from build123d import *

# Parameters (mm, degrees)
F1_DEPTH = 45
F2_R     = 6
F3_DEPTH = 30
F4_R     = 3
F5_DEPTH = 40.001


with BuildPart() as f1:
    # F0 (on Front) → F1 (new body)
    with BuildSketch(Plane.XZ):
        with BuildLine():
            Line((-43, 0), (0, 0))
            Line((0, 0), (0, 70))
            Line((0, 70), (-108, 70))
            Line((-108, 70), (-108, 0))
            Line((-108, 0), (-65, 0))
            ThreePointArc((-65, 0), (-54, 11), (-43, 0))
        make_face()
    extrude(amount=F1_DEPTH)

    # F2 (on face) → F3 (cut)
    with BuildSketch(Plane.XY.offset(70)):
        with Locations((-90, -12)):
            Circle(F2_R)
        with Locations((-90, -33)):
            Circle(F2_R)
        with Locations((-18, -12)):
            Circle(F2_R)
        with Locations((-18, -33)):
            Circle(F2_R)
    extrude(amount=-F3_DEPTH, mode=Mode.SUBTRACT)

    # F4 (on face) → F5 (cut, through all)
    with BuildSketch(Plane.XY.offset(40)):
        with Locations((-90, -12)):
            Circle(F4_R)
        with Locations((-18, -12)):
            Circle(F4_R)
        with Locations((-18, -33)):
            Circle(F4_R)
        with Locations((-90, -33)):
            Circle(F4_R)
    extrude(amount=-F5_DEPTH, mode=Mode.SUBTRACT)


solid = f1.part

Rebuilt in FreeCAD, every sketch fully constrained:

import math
import FreeCAD as App
import Part
import Sketcher
from FreeCAD import Vector
Q = App.Units.Quantity

doc = App.newDocument("Part")
body = doc.addObject("PartDesign::Body", "Body")

sketch1 = body.newObject("Sketcher::SketchObject", "Sketch")
sketch1.AttachmentSupport = (doc.getObject("XZ_Plane"), [""])
sketch1.MapMode = "FlatFace"
sketch1.addGeometry(Part.LineSegment(Vector(-43, 0, 0), Vector(0, 0, 0)), False)
sketch1.addGeometry(Part.LineSegment(Vector(0, 0, 0), Vector(0, 70, 0)), False)
sketch1.addGeometry(Part.LineSegment(Vector(0, 70, 0), Vector(-108, 70, 0)), False)
sketch1.addGeometry(Part.LineSegment(Vector(-108, 70, 0), Vector(-108, 0, 0)), False)
sketch1.addGeometry(Part.LineSegment(Vector(-108, 0, 0), Vector(-65, 0, 0)), False)
sketch1.addGeometry(Part.ArcOfCircle(Part.Circle(Vector(-54, 0, 0), Vector(0, 0, 1), 11), math.radians(0), math.radians(180)), False)
sketch1.addConstraint(Sketcher.Constraint("Coincident", 0, 2, 1, 1))
sketch1.addConstraint(Sketcher.Constraint("Coincident", 1, 2, 2, 1))
sketch1.addConstraint(Sketcher.Constraint("Coincident", 2, 2, 3, 1))
sketch1.addConstraint(Sketcher.Constraint("Coincident", 3, 2, 4, 1))
sketch1.addConstraint(Sketcher.Constraint("Coincident", 4, 2, 5, 2))
sketch1.addConstraint(Sketcher.Constraint("Coincident", 5, 1, 0, 1))
sketch1.addConstraint(Sketcher.Constraint("Horizontal", 0))
sketch1.addConstraint(Sketcher.Constraint("Vertical", 1))
sketch1.addConstraint(Sketcher.Constraint("Horizontal", 2))
sketch1.addConstraint(Sketcher.Constraint("Vertical", 3))
sketch1.addConstraint(Sketcher.Constraint("Horizontal", 4))
sketch1.addConstraint(Sketcher.Constraint("Coincident", 0, 2, -1, 1))
sketch1.addConstraint(Sketcher.Constraint("PointOnObject", 5, 3, -1))
sketch1.addConstraint(Sketcher.Constraint("PointOnObject", 3, 2, -1))
sketch1.addConstraint(Sketcher.Constraint("Equal", 0, 4))
sketch1.addConstraint(Sketcher.Constraint("Radius", 5, Q("11 mm")))
sketch1.addConstraint(Sketcher.Constraint("DistanceX", 0, 1, 0, 2, Q("43 mm")))
sketch1.addConstraint(Sketcher.Constraint("DistanceY", 1, 1, 1, 2, Q("70 mm")))
pad1 = body.newObject("PartDesign::Pad", "Pad")
pad1.Profile = sketch1
pad1.Length = 45

sketch2 = body.newObject("Sketcher::SketchObject", "Sketch001")
sketch2.AttachmentSupport = (doc.getObject("XY_Plane"), [""])
sketch2.MapMode = "FlatFace"
sketch2.AttachmentOffset = App.Placement(Vector(0, 0, 70), App.Rotation())
sketch2.addGeometry(Part.Circle(Vector(-90, -12, 0), Vector(0, 0, 1), 6), False)
sketch2.addGeometry(Part.Circle(Vector(-90, -33, 0), Vector(0, 0, 1), 6), False)
sketch2.addGeometry(Part.Circle(Vector(-18, -12, 0), Vector(0, 0, 1), 6), False)
sketch2.addGeometry(Part.Circle(Vector(-18, -33, 0), Vector(0, 0, 1), 6), False)
sketch2.addConstraint(Sketcher.Constraint("Equal", 0, 1))
sketch2.addConstraint(Sketcher.Constraint("Equal", 1, 2))
sketch2.addConstraint(Sketcher.Constraint("Equal", 2, 3))
sketch2.addConstraint(Sketcher.Constraint("Horizontal", 0, 3, 2, 3))
sketch2.addConstraint(Sketcher.Constraint("Horizontal", 1, 3, 3, 3))
sketch2.addConstraint(Sketcher.Constraint("Vertical", 0, 3, 1, 3))
sketch2.addConstraint(Sketcher.Constraint("Vertical", 2, 3, 3, 3))
sketch2.addConstraint(Sketcher.Constraint("Diameter", 0, Q("12 mm")))
sketch2.addConstraint(Sketcher.Constraint("DistanceX", 0, 3, -1, 1, Q("90 mm")))
sketch2.addConstraint(Sketcher.Constraint("DistanceY", 0, 3, -1, 1, Q("12 mm")))
sketch2.addConstraint(Sketcher.Constraint("DistanceY", 1, 3, -1, 1, Q("33 mm")))
sketch2.addConstraint(Sketcher.Constraint("DistanceX", 2, 3, -1, 1, Q("18 mm")))
pocket1 = body.newObject("PartDesign::Pocket", "Pocket")
pocket1.Profile = sketch2
pocket1.Length = 30

sketch3 = body.newObject("Sketcher::SketchObject", "Sketch002")
sketch3.AttachmentSupport = (doc.getObject("XY_Plane"), [""])
sketch3.MapMode = "FlatFace"
sketch3.AttachmentOffset = App.Placement(Vector(0, 0, 40), App.Rotation())
sketch3.addGeometry(Part.Circle(Vector(-90, -12, 0), Vector(0, 0, 1), 3), False)
sketch3.addGeometry(Part.Circle(Vector(-18, -12, 0), Vector(0, 0, 1), 3), False)
sketch3.addGeometry(Part.Circle(Vector(-18, -33, 0), Vector(0, 0, 1), 3), False)
sketch3.addGeometry(Part.Circle(Vector(-90, -33, 0), Vector(0, 0, 1), 3), False)
sketch3.addConstraint(Sketcher.Constraint("Equal", 0, 1))
sketch3.addConstraint(Sketcher.Constraint("Equal", 1, 2))
sketch3.addConstraint(Sketcher.Constraint("Equal", 2, 3))
sketch3.addConstraint(Sketcher.Constraint("Horizontal", 0, 3, 1, 3))
sketch3.addConstraint(Sketcher.Constraint("Horizontal", 2, 3, 3, 3))
sketch3.addConstraint(Sketcher.Constraint("Vertical", 1, 3, 2, 3))
sketch3.addConstraint(Sketcher.Constraint("Vertical", 0, 3, 3, 3))
sketch3.addConstraint(Sketcher.Constraint("Diameter", 0, Q("6 mm")))
sketch3.addConstraint(Sketcher.Constraint("DistanceX", 0, 3, -1, 1, Q("90 mm")))
sketch3.addConstraint(Sketcher.Constraint("DistanceY", 0, 3, -1, 1, Q("12 mm")))
sketch3.addConstraint(Sketcher.Constraint("DistanceX", 1, 3, -1, 1, Q("18 mm")))
sketch3.addConstraint(Sketcher.Constraint("DistanceY", 2, 3, -1, 1, Q("33 mm")))
pocket2 = body.newObject("PartDesign::Pocket", "Pocket001")
pocket2.Profile = sketch3
pocket2.Type = "ThroughAll"

doc.recompute()
